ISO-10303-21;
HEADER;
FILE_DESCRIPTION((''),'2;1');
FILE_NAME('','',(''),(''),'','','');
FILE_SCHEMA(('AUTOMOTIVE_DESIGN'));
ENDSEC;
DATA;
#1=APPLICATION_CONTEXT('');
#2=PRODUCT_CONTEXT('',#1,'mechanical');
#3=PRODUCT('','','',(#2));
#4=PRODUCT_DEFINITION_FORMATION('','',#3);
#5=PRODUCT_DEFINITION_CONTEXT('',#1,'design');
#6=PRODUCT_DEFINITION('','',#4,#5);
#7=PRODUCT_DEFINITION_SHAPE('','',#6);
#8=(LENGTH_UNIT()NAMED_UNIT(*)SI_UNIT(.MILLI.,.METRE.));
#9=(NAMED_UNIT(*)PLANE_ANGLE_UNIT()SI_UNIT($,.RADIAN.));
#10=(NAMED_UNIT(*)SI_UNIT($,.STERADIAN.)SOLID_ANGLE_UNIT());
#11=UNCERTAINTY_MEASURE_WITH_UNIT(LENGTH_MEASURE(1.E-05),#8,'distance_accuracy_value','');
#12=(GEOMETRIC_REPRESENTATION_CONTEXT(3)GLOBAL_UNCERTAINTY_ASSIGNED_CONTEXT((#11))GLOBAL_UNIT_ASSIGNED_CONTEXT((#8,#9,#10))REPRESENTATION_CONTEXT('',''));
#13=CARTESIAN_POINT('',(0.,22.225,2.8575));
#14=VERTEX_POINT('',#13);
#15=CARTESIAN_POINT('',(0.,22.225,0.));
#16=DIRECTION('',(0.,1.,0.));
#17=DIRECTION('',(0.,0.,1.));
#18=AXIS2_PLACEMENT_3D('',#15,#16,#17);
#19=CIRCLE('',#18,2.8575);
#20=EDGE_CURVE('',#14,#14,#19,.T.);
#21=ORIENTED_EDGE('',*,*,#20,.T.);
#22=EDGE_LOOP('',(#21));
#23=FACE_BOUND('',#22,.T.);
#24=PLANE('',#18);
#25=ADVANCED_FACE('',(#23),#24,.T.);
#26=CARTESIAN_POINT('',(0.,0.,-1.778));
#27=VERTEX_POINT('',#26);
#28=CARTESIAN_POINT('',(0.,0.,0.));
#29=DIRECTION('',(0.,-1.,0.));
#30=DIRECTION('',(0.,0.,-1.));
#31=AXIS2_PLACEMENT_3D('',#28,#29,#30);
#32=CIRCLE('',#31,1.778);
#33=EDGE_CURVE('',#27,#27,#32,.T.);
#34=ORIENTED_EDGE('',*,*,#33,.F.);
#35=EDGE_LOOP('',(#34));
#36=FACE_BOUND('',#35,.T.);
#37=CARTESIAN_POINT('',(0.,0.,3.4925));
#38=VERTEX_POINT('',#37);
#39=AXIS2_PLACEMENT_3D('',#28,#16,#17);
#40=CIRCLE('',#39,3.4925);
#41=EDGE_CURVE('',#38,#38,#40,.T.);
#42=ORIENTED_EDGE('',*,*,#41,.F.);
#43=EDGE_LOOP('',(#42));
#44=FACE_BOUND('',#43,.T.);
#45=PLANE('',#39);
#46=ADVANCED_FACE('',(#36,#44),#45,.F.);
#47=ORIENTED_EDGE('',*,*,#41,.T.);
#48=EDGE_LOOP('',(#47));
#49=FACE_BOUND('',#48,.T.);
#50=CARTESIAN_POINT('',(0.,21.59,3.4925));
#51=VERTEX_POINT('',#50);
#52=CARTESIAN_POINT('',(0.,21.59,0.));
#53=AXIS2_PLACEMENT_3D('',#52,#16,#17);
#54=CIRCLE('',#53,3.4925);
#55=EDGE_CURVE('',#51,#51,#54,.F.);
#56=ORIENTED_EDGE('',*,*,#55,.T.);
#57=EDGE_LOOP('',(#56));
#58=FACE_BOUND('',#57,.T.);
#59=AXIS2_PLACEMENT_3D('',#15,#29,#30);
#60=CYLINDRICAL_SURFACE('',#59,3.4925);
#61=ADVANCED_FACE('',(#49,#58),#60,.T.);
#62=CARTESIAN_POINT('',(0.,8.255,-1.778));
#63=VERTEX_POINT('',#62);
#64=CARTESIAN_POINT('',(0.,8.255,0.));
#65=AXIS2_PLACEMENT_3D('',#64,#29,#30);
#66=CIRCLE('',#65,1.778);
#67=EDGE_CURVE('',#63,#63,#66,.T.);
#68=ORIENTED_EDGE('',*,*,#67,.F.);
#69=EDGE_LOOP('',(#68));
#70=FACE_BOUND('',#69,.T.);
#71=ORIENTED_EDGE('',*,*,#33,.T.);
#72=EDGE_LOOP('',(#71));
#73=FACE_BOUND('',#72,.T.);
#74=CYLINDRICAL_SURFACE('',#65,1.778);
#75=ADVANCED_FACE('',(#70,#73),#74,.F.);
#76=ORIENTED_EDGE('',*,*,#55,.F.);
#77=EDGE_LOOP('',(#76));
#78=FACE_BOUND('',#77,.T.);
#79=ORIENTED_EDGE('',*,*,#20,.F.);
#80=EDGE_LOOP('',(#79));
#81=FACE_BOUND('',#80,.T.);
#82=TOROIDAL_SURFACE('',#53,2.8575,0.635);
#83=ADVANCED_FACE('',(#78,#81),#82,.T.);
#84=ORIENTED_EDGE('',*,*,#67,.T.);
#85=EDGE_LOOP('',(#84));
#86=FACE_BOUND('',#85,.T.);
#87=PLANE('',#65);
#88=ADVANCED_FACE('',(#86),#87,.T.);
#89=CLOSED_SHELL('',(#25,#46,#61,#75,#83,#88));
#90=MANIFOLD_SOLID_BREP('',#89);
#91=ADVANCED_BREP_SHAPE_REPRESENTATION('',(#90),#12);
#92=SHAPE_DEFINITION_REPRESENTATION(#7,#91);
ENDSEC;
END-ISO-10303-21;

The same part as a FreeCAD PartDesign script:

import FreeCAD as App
import Part
import Sketcher

V = App.Vector
Q = App.Units.Quantity


def edges_at(feature, points):
    """Names of the edges that pass closest to the given points."""
    edges = feature.Shape.Edges
    near = lambda p: min(range(len(edges)), key=lambda i: edges[i].distToShape(Part.Vertex(*p))[0])
    return sorted({f"Edge{near(p) + 1}" for p in points})

doc = App.newDocument("Part")
body = doc.addObject("PartDesign::Body", "Body")

sketch1 = doc.addObject("Sketcher::SketchObject", "Sketch")
body.addObject(sketch1)
sketch1.AttachmentSupport = (doc.XZ_Plane, [""])
sketch1.MapMode = "FlatFace"
sketch1.addGeometry(Part.Circle(V(0, 0, 0), V(0, 0, 1), 3.5), False)
sketch1.addConstraint(Sketcher.Constraint("Coincident", 0, 3, -1, 1))
sketch1.addConstraint(Sketcher.Constraint("Diameter", 0, Q("0.275 in")))
pad1 = doc.addObject("PartDesign::Pad", "Pad")
body.addObject(pad1)
pad1.Profile = sketch1
pad1.Length = Q("0.875 in")
pad1.Reversed = True
doc.recompute()

fillet = doc.addObject("PartDesign::Fillet", "Fillet")
body.addObject(fillet)
fillet.Base = (pad1, edges_at(pad1, [(-3.493, 22.225, 0)]))
fillet.Radius = Q("0.025 in")

sketch2 = doc.addObject("Sketcher::SketchObject", "Sketch001")
body.addObject(sketch2)
sketch2.AttachmentSupport = (doc.XZ_Plane, [""])
sketch2.MapMode = "FlatFace"
sketch2.addGeometry(Part.Circle(V(0, 0, 0), V(0, 0, 1), 1.8), False)
sketch2.addConstraint(Sketcher.Constraint("Coincident", 0, 3, -1, 1))
sketch2.addConstraint(Sketcher.Constraint("Diameter", 0, Q("0.14 in")))
pocket1 = doc.addObject("PartDesign::Pocket", "Pocket")
body.addObject(pocket1)
pocket1.Profile = sketch2
pocket1.Length = Q("0.325 in")

doc.recompute()
